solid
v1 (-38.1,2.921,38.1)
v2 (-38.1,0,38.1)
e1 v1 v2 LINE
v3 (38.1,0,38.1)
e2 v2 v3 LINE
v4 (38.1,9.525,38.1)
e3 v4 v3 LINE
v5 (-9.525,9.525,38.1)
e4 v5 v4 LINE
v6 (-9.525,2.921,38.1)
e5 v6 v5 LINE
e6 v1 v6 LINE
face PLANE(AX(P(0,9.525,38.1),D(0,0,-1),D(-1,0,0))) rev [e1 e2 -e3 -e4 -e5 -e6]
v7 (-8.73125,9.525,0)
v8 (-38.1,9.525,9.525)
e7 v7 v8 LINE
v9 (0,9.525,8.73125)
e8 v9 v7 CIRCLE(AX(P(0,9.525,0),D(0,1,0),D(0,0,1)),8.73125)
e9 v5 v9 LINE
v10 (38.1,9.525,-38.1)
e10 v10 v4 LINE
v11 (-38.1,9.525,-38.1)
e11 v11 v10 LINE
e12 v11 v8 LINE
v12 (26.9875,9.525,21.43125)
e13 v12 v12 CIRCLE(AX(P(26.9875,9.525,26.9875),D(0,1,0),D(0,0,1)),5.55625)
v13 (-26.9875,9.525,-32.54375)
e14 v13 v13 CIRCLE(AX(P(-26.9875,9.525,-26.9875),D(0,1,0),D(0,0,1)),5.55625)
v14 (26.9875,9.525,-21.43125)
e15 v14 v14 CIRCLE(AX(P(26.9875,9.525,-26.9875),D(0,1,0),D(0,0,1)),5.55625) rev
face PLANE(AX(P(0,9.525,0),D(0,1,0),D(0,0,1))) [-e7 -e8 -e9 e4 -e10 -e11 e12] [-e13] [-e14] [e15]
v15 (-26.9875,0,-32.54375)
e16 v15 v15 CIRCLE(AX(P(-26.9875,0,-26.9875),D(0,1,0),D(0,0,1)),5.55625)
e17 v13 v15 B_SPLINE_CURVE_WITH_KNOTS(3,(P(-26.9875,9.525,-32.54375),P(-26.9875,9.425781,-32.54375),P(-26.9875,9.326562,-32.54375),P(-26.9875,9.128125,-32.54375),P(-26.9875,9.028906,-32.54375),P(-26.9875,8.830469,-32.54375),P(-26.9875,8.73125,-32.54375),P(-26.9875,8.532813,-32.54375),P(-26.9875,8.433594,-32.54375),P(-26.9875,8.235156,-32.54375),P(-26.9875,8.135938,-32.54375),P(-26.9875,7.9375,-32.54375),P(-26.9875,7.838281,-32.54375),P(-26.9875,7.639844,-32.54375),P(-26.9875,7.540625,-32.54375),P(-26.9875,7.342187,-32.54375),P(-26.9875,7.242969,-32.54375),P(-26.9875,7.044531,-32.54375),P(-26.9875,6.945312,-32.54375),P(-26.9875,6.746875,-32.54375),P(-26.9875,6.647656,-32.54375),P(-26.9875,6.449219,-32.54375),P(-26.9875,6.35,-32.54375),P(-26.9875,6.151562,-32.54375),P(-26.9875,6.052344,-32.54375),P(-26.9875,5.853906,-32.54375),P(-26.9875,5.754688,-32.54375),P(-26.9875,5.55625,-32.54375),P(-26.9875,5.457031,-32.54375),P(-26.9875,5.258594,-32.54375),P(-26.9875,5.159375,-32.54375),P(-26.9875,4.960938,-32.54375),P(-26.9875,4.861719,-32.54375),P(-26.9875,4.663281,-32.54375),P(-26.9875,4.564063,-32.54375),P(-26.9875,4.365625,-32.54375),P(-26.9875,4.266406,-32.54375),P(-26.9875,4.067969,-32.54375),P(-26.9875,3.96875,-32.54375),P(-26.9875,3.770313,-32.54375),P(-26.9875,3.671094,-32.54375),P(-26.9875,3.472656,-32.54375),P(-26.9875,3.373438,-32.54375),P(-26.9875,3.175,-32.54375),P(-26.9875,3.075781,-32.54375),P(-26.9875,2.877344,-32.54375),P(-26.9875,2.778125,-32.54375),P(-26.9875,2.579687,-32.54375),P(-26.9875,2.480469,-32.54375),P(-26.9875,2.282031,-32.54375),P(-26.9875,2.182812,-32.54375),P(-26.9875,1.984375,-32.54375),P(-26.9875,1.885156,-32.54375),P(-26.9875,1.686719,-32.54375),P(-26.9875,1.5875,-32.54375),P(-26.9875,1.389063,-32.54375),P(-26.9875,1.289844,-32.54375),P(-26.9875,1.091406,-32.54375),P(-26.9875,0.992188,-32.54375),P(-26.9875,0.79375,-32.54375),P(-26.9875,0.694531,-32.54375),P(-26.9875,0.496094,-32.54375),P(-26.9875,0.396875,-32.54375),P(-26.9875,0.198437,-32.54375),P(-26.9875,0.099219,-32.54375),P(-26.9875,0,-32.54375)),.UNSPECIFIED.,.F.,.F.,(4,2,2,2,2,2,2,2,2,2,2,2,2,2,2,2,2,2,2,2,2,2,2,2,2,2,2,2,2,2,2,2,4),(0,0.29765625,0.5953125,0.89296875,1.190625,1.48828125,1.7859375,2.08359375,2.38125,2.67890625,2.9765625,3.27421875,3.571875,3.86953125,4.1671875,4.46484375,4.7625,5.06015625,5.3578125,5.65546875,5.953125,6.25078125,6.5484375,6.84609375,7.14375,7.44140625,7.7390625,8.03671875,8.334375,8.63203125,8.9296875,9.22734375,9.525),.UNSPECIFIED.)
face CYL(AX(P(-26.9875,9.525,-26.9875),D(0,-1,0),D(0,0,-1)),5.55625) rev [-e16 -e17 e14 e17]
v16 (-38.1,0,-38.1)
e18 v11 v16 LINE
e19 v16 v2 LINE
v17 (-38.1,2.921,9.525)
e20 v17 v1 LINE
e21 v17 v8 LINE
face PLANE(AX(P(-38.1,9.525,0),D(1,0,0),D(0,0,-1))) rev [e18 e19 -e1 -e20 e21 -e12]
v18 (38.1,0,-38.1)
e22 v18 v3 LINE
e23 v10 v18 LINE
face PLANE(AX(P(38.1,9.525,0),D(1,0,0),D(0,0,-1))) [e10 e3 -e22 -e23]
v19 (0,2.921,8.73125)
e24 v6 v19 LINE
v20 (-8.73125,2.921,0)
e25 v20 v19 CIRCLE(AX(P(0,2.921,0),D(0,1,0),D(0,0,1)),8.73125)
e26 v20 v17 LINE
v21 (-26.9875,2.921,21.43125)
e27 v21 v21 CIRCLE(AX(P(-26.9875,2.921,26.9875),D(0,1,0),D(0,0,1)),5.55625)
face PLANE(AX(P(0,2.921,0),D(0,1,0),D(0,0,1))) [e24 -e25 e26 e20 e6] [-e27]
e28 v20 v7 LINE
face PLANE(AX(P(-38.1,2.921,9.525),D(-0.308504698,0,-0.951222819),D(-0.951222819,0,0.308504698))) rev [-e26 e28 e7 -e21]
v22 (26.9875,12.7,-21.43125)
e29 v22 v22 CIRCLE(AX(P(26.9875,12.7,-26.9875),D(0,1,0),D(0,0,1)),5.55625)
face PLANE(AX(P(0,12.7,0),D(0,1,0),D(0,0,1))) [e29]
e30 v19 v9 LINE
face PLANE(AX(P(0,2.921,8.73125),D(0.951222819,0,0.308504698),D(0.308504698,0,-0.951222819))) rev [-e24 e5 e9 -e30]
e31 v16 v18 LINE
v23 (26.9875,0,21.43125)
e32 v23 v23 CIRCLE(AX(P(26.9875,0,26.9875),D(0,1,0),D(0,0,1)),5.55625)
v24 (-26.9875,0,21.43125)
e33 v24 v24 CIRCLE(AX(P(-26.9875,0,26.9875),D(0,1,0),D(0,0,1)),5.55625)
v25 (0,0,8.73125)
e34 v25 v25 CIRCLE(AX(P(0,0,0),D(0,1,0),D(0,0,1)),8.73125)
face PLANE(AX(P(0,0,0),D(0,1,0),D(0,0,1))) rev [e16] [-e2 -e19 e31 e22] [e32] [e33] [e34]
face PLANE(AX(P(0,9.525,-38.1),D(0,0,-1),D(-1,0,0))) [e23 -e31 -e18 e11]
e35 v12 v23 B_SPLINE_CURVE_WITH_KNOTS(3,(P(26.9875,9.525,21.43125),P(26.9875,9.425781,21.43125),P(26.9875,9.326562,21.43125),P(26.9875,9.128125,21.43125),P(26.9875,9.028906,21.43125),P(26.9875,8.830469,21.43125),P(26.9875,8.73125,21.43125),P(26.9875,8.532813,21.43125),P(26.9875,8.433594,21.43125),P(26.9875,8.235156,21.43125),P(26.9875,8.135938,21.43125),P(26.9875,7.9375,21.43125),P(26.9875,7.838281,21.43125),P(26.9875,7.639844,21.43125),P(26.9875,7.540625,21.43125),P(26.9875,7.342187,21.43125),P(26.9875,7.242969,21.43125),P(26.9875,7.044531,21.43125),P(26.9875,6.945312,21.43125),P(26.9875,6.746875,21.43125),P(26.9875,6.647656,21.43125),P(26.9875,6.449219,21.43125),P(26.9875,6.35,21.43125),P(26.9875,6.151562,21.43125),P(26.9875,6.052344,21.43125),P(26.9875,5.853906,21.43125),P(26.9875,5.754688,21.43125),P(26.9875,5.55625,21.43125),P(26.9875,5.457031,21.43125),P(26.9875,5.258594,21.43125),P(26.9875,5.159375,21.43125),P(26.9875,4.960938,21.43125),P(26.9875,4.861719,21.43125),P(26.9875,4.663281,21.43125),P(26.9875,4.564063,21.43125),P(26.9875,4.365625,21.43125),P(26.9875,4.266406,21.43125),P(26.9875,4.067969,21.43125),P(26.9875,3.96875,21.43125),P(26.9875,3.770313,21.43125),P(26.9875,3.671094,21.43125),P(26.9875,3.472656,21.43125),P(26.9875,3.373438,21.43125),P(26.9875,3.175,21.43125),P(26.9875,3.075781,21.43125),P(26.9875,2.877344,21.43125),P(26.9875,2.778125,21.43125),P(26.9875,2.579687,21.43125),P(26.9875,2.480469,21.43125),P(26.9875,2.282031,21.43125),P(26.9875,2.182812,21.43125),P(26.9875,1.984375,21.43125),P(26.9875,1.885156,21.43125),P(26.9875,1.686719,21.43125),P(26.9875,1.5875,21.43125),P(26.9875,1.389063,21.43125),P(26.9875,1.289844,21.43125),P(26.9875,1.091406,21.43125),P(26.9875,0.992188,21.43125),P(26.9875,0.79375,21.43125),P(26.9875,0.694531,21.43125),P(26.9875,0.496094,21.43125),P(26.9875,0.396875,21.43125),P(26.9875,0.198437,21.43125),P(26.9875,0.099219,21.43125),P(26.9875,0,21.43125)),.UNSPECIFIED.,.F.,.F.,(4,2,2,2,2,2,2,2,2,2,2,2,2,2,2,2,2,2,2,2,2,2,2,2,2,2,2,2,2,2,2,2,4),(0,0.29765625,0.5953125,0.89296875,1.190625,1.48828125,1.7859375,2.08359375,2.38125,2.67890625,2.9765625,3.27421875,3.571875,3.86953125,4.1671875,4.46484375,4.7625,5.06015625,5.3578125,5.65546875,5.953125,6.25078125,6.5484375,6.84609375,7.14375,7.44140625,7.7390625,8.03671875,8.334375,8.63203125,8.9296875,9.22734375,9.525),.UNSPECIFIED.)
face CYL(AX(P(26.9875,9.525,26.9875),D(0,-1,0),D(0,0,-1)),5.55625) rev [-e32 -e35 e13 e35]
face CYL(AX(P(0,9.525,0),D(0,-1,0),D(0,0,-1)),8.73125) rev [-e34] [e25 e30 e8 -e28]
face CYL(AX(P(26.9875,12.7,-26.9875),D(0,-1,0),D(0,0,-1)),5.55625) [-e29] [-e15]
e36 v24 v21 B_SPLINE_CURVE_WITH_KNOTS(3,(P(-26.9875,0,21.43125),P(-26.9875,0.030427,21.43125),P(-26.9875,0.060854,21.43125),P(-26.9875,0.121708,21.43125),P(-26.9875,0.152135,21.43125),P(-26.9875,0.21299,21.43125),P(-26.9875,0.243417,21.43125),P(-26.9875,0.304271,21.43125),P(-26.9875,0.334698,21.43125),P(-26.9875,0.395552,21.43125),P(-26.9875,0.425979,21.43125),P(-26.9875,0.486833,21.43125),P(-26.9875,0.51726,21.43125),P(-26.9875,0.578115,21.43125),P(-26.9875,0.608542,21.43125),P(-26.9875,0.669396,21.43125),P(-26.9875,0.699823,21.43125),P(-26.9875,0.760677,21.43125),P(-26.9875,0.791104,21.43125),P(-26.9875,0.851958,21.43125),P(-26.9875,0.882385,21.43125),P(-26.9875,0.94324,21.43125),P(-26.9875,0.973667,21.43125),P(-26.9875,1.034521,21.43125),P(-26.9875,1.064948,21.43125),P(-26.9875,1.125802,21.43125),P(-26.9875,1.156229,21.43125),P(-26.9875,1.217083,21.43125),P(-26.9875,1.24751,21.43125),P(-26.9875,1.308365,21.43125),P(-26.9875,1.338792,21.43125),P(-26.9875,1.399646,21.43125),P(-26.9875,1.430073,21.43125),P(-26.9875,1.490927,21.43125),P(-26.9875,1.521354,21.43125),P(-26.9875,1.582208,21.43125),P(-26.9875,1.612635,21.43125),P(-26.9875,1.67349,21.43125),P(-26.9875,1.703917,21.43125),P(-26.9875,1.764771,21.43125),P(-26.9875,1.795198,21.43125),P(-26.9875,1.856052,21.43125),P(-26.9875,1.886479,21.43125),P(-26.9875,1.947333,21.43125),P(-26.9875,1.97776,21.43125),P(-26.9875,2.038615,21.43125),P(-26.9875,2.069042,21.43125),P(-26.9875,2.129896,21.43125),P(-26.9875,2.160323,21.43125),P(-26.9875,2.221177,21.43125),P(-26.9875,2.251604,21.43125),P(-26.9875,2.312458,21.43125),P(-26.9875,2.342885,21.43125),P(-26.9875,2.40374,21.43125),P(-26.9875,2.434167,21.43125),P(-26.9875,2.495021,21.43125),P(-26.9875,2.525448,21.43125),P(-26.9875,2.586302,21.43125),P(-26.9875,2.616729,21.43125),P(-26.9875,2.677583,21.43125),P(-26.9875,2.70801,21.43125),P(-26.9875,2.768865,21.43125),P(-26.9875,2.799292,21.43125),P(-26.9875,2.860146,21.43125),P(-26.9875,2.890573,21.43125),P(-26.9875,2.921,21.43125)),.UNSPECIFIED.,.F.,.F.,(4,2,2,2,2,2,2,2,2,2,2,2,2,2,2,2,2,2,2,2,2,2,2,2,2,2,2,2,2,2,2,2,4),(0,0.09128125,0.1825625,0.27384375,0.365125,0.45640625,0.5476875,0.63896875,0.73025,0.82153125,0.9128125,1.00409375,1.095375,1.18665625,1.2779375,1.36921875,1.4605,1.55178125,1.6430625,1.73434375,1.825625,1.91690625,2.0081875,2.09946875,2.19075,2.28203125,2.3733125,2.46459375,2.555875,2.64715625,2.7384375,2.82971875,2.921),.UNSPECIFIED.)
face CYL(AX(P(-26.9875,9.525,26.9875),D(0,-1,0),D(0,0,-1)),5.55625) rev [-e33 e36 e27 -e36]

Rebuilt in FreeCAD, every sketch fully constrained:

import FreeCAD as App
import Part
import Sketcher
from FreeCAD import Vector
Q = App.Units.Quantity


def add_polygon(sketch, points):
    """Adds a closed chain of lines whose ends are joined by coincident constraints."""
    first, n = sketch.GeometryCount, len(points)
    for a, b in zip(points, points[1:] + points[:1]):
        sketch.addGeometry(Part.LineSegment(App.Vector(*a, 0), App.Vector(*b, 0)), False)
    for i in range(n):
        sketch.addConstraint(Sketcher.Constraint("Coincident", first + i, 2, first + (i + 1) % n, 1))

doc = App.newDocument("Part")
params = doc.addObject("Spreadsheet::Sheet", "Params")
for row, (alias, value) in enumerate([
    ("sketch1_width", "3 in"),
    ("sketch1_diameter", "0.4375 in"),
    ("sketch1_diameter2", "0.6875 in"),
    ("pad1_length", "0.375 in"),
    ("sketch2_width", "1.125 in"),
    ("pocket1_length", "0.26 in"),
    ("sketch3_diameter", "0.4375 in"),
    ("pad2_length", "0.5 in"),
], start=1):
    params.set(f"A{row}", alias)
    params.set(f"B{row}", "=" + value)
    params.setAlias(f"B{row}", alias)

body = doc.addObject("PartDesign::Body", "Body")

sketch1 = body.newObject("Sketcher::SketchObject", "Sketch")
sketch1.AttachmentSupport = (doc.getObject("XZ_Plane"), [""])
sketch1.MapMode = "FlatFace"
add_polygon(sketch1, [(-38.1, -38.1), (-38.1, 38.1), (38.1, 38.1), (38.1, -38.1)])
sketch1.addGeometry(Part.Circle(Vector(-26.9875, 26.9875, 0), Vector(0, 0, 1), 5.55625), False)
sketch1.addGeometry(Part.Circle(Vector(26.9875, 26.9875, 0), Vector(0, 0, 1), 5.55625), False)
sketch1.addGeometry(Part.Circle(Vector(-26.9875, -26.9875, 0), Vector(0, 0, 1), 5.55625), False)
sketch1.addGeometry(Part.Circle(Vector(0, 0, 0), Vector(0, 0, 1), 8.73125), False)
sketch1.addConstraint([
    Sketcher.Constraint("Vertical", 0),
    Sketcher.Constraint("Horizontal", 1),
    Sketcher.Constraint("Vertical", 2),
    Sketcher.Constraint("Horizontal", 3),
    Sketcher.Constraint("Coincident", 7, 3, -1, 1),
    Sketcher.Constraint("Equal", 4, 5),
    Sketcher.Constraint("Equal", 5, 6),
    Sketcher.Constraint("Symmetric", 5, 3, 6, 3, -1, 1),
    Sketcher.Constraint("Symmetric", 0, 2, 2, 2, -1, 1),
    Sketcher.Constraint("Symmetric", 4, 3, 5, 3, -2),
    Sketcher.Constraint("Equal", 3, 0),
    Sketcher.Constraint("DistanceX", 1, 1, 1, 2, Q("3 in")),
    Sketcher.Constraint("Diameter", 4, Q("0.4375 in")),
    Sketcher.Constraint("Diameter", 7, Q("0.6875 in")),
    Sketcher.Constraint("DistanceX", 4, 3, -1, 1, Q("1.0625 in")),
    Sketcher.Constraint("DistanceY", -1, 1, 4, 3, Q("1.0625 in")),
])
sketch1.setExpression("Constraints[15]", "Params.sketch1_width")
sketch1.setExpression("Constraints[16]", "Params.sketch1_diameter")
sketch1.setExpression("Constraints[17]", "Params.sketch1_diameter2")
pad1 = body.newObject("PartDesign::Pad", "Pad")
pad1.Profile = sketch1
pad1.setExpression("Length", "Params.pad1_length")
pad1.Reversed = True

sketch2 = body.newObject("Sketcher::SketchObject", "Sketch001")
sketch2.AttachmentSupport = (doc.getObject("XZ_Plane"), [""])
sketch2.MapMode = "FlatFace"
sketch2.AttachmentOffset = App.Placement(Vector(0, 0, -0.375 * 25.4), App.Rotation())
add_polygon(sketch2, [(-8.73125, 0), (-38.1, 9.525), (-38.1, 38.1), (-9.525, 38.1), (0, 8.73125)])
sketch2.addConstraint([
    Sketcher.Constraint("Vertical", 1),
    Sketcher.Constraint("Horizontal", 2),
    Sketcher.Constraint("PointOnObject", 3, 2, -2),
    Sketcher.Constraint("PointOnObject", 4, 2, -1),
    Sketcher.Constraint("Equal", 2, 1),
    Sketcher.Constraint("Equal", 0, 3),
    Sketcher.Constraint("Angle", 4, Q("-135 deg")),
    Sketcher.Constraint("DistanceX", 0, 2, -1, 1, Q("1.5 in")),
    Sketcher.Constraint("DistanceX", 2, 1, 2, 2, Q("1.125 in")),
    Sketcher.Constraint("DistanceY", -1, 1, 3, 2, Q("0.34375 in")),
])
sketch2.setExpression("Constraints[13]", "Params.sketch2_width")
pocket1 = body.newObject("PartDesign::Pocket", "Pocket")
pocket1.Profile = sketch2
pocket1.setExpression("Length", "Params.pocket1_length")
pocket1.Reversed = True

sketch3 = body.newObject("Sketcher::SketchObject", "Sketch002")
sketch3.AttachmentSupport = (doc.getObject("XZ_Plane"), [""])
sketch3.MapMode = "FlatFace"
sketch3.addGeometry(Part.Circle(Vector(26.9875, -26.9875, 0), Vector(0, 0, 1), 5.55625), False)
sketch3.addConstraint([
    Sketcher.Constraint("Diameter", 0, Q("0.4375 in")),
    Sketcher.Constraint("DistanceX", -1, 1, 0, 3, Q("1.0625 in")),
    Sketcher.Constraint("DistanceY", 0, 3, -1, 1, Q("1.0625 in")),
])
sketch3.setExpression("Constraints[0]", "Params.sketch3_diameter")
pad2 = body.newObject("PartDesign::Pad", "Pad001")
pad2.Profile = sketch3
pad2.setExpression("Length", "Params.pad2_length")
pad2.Reversed = True

doc.recompute()
